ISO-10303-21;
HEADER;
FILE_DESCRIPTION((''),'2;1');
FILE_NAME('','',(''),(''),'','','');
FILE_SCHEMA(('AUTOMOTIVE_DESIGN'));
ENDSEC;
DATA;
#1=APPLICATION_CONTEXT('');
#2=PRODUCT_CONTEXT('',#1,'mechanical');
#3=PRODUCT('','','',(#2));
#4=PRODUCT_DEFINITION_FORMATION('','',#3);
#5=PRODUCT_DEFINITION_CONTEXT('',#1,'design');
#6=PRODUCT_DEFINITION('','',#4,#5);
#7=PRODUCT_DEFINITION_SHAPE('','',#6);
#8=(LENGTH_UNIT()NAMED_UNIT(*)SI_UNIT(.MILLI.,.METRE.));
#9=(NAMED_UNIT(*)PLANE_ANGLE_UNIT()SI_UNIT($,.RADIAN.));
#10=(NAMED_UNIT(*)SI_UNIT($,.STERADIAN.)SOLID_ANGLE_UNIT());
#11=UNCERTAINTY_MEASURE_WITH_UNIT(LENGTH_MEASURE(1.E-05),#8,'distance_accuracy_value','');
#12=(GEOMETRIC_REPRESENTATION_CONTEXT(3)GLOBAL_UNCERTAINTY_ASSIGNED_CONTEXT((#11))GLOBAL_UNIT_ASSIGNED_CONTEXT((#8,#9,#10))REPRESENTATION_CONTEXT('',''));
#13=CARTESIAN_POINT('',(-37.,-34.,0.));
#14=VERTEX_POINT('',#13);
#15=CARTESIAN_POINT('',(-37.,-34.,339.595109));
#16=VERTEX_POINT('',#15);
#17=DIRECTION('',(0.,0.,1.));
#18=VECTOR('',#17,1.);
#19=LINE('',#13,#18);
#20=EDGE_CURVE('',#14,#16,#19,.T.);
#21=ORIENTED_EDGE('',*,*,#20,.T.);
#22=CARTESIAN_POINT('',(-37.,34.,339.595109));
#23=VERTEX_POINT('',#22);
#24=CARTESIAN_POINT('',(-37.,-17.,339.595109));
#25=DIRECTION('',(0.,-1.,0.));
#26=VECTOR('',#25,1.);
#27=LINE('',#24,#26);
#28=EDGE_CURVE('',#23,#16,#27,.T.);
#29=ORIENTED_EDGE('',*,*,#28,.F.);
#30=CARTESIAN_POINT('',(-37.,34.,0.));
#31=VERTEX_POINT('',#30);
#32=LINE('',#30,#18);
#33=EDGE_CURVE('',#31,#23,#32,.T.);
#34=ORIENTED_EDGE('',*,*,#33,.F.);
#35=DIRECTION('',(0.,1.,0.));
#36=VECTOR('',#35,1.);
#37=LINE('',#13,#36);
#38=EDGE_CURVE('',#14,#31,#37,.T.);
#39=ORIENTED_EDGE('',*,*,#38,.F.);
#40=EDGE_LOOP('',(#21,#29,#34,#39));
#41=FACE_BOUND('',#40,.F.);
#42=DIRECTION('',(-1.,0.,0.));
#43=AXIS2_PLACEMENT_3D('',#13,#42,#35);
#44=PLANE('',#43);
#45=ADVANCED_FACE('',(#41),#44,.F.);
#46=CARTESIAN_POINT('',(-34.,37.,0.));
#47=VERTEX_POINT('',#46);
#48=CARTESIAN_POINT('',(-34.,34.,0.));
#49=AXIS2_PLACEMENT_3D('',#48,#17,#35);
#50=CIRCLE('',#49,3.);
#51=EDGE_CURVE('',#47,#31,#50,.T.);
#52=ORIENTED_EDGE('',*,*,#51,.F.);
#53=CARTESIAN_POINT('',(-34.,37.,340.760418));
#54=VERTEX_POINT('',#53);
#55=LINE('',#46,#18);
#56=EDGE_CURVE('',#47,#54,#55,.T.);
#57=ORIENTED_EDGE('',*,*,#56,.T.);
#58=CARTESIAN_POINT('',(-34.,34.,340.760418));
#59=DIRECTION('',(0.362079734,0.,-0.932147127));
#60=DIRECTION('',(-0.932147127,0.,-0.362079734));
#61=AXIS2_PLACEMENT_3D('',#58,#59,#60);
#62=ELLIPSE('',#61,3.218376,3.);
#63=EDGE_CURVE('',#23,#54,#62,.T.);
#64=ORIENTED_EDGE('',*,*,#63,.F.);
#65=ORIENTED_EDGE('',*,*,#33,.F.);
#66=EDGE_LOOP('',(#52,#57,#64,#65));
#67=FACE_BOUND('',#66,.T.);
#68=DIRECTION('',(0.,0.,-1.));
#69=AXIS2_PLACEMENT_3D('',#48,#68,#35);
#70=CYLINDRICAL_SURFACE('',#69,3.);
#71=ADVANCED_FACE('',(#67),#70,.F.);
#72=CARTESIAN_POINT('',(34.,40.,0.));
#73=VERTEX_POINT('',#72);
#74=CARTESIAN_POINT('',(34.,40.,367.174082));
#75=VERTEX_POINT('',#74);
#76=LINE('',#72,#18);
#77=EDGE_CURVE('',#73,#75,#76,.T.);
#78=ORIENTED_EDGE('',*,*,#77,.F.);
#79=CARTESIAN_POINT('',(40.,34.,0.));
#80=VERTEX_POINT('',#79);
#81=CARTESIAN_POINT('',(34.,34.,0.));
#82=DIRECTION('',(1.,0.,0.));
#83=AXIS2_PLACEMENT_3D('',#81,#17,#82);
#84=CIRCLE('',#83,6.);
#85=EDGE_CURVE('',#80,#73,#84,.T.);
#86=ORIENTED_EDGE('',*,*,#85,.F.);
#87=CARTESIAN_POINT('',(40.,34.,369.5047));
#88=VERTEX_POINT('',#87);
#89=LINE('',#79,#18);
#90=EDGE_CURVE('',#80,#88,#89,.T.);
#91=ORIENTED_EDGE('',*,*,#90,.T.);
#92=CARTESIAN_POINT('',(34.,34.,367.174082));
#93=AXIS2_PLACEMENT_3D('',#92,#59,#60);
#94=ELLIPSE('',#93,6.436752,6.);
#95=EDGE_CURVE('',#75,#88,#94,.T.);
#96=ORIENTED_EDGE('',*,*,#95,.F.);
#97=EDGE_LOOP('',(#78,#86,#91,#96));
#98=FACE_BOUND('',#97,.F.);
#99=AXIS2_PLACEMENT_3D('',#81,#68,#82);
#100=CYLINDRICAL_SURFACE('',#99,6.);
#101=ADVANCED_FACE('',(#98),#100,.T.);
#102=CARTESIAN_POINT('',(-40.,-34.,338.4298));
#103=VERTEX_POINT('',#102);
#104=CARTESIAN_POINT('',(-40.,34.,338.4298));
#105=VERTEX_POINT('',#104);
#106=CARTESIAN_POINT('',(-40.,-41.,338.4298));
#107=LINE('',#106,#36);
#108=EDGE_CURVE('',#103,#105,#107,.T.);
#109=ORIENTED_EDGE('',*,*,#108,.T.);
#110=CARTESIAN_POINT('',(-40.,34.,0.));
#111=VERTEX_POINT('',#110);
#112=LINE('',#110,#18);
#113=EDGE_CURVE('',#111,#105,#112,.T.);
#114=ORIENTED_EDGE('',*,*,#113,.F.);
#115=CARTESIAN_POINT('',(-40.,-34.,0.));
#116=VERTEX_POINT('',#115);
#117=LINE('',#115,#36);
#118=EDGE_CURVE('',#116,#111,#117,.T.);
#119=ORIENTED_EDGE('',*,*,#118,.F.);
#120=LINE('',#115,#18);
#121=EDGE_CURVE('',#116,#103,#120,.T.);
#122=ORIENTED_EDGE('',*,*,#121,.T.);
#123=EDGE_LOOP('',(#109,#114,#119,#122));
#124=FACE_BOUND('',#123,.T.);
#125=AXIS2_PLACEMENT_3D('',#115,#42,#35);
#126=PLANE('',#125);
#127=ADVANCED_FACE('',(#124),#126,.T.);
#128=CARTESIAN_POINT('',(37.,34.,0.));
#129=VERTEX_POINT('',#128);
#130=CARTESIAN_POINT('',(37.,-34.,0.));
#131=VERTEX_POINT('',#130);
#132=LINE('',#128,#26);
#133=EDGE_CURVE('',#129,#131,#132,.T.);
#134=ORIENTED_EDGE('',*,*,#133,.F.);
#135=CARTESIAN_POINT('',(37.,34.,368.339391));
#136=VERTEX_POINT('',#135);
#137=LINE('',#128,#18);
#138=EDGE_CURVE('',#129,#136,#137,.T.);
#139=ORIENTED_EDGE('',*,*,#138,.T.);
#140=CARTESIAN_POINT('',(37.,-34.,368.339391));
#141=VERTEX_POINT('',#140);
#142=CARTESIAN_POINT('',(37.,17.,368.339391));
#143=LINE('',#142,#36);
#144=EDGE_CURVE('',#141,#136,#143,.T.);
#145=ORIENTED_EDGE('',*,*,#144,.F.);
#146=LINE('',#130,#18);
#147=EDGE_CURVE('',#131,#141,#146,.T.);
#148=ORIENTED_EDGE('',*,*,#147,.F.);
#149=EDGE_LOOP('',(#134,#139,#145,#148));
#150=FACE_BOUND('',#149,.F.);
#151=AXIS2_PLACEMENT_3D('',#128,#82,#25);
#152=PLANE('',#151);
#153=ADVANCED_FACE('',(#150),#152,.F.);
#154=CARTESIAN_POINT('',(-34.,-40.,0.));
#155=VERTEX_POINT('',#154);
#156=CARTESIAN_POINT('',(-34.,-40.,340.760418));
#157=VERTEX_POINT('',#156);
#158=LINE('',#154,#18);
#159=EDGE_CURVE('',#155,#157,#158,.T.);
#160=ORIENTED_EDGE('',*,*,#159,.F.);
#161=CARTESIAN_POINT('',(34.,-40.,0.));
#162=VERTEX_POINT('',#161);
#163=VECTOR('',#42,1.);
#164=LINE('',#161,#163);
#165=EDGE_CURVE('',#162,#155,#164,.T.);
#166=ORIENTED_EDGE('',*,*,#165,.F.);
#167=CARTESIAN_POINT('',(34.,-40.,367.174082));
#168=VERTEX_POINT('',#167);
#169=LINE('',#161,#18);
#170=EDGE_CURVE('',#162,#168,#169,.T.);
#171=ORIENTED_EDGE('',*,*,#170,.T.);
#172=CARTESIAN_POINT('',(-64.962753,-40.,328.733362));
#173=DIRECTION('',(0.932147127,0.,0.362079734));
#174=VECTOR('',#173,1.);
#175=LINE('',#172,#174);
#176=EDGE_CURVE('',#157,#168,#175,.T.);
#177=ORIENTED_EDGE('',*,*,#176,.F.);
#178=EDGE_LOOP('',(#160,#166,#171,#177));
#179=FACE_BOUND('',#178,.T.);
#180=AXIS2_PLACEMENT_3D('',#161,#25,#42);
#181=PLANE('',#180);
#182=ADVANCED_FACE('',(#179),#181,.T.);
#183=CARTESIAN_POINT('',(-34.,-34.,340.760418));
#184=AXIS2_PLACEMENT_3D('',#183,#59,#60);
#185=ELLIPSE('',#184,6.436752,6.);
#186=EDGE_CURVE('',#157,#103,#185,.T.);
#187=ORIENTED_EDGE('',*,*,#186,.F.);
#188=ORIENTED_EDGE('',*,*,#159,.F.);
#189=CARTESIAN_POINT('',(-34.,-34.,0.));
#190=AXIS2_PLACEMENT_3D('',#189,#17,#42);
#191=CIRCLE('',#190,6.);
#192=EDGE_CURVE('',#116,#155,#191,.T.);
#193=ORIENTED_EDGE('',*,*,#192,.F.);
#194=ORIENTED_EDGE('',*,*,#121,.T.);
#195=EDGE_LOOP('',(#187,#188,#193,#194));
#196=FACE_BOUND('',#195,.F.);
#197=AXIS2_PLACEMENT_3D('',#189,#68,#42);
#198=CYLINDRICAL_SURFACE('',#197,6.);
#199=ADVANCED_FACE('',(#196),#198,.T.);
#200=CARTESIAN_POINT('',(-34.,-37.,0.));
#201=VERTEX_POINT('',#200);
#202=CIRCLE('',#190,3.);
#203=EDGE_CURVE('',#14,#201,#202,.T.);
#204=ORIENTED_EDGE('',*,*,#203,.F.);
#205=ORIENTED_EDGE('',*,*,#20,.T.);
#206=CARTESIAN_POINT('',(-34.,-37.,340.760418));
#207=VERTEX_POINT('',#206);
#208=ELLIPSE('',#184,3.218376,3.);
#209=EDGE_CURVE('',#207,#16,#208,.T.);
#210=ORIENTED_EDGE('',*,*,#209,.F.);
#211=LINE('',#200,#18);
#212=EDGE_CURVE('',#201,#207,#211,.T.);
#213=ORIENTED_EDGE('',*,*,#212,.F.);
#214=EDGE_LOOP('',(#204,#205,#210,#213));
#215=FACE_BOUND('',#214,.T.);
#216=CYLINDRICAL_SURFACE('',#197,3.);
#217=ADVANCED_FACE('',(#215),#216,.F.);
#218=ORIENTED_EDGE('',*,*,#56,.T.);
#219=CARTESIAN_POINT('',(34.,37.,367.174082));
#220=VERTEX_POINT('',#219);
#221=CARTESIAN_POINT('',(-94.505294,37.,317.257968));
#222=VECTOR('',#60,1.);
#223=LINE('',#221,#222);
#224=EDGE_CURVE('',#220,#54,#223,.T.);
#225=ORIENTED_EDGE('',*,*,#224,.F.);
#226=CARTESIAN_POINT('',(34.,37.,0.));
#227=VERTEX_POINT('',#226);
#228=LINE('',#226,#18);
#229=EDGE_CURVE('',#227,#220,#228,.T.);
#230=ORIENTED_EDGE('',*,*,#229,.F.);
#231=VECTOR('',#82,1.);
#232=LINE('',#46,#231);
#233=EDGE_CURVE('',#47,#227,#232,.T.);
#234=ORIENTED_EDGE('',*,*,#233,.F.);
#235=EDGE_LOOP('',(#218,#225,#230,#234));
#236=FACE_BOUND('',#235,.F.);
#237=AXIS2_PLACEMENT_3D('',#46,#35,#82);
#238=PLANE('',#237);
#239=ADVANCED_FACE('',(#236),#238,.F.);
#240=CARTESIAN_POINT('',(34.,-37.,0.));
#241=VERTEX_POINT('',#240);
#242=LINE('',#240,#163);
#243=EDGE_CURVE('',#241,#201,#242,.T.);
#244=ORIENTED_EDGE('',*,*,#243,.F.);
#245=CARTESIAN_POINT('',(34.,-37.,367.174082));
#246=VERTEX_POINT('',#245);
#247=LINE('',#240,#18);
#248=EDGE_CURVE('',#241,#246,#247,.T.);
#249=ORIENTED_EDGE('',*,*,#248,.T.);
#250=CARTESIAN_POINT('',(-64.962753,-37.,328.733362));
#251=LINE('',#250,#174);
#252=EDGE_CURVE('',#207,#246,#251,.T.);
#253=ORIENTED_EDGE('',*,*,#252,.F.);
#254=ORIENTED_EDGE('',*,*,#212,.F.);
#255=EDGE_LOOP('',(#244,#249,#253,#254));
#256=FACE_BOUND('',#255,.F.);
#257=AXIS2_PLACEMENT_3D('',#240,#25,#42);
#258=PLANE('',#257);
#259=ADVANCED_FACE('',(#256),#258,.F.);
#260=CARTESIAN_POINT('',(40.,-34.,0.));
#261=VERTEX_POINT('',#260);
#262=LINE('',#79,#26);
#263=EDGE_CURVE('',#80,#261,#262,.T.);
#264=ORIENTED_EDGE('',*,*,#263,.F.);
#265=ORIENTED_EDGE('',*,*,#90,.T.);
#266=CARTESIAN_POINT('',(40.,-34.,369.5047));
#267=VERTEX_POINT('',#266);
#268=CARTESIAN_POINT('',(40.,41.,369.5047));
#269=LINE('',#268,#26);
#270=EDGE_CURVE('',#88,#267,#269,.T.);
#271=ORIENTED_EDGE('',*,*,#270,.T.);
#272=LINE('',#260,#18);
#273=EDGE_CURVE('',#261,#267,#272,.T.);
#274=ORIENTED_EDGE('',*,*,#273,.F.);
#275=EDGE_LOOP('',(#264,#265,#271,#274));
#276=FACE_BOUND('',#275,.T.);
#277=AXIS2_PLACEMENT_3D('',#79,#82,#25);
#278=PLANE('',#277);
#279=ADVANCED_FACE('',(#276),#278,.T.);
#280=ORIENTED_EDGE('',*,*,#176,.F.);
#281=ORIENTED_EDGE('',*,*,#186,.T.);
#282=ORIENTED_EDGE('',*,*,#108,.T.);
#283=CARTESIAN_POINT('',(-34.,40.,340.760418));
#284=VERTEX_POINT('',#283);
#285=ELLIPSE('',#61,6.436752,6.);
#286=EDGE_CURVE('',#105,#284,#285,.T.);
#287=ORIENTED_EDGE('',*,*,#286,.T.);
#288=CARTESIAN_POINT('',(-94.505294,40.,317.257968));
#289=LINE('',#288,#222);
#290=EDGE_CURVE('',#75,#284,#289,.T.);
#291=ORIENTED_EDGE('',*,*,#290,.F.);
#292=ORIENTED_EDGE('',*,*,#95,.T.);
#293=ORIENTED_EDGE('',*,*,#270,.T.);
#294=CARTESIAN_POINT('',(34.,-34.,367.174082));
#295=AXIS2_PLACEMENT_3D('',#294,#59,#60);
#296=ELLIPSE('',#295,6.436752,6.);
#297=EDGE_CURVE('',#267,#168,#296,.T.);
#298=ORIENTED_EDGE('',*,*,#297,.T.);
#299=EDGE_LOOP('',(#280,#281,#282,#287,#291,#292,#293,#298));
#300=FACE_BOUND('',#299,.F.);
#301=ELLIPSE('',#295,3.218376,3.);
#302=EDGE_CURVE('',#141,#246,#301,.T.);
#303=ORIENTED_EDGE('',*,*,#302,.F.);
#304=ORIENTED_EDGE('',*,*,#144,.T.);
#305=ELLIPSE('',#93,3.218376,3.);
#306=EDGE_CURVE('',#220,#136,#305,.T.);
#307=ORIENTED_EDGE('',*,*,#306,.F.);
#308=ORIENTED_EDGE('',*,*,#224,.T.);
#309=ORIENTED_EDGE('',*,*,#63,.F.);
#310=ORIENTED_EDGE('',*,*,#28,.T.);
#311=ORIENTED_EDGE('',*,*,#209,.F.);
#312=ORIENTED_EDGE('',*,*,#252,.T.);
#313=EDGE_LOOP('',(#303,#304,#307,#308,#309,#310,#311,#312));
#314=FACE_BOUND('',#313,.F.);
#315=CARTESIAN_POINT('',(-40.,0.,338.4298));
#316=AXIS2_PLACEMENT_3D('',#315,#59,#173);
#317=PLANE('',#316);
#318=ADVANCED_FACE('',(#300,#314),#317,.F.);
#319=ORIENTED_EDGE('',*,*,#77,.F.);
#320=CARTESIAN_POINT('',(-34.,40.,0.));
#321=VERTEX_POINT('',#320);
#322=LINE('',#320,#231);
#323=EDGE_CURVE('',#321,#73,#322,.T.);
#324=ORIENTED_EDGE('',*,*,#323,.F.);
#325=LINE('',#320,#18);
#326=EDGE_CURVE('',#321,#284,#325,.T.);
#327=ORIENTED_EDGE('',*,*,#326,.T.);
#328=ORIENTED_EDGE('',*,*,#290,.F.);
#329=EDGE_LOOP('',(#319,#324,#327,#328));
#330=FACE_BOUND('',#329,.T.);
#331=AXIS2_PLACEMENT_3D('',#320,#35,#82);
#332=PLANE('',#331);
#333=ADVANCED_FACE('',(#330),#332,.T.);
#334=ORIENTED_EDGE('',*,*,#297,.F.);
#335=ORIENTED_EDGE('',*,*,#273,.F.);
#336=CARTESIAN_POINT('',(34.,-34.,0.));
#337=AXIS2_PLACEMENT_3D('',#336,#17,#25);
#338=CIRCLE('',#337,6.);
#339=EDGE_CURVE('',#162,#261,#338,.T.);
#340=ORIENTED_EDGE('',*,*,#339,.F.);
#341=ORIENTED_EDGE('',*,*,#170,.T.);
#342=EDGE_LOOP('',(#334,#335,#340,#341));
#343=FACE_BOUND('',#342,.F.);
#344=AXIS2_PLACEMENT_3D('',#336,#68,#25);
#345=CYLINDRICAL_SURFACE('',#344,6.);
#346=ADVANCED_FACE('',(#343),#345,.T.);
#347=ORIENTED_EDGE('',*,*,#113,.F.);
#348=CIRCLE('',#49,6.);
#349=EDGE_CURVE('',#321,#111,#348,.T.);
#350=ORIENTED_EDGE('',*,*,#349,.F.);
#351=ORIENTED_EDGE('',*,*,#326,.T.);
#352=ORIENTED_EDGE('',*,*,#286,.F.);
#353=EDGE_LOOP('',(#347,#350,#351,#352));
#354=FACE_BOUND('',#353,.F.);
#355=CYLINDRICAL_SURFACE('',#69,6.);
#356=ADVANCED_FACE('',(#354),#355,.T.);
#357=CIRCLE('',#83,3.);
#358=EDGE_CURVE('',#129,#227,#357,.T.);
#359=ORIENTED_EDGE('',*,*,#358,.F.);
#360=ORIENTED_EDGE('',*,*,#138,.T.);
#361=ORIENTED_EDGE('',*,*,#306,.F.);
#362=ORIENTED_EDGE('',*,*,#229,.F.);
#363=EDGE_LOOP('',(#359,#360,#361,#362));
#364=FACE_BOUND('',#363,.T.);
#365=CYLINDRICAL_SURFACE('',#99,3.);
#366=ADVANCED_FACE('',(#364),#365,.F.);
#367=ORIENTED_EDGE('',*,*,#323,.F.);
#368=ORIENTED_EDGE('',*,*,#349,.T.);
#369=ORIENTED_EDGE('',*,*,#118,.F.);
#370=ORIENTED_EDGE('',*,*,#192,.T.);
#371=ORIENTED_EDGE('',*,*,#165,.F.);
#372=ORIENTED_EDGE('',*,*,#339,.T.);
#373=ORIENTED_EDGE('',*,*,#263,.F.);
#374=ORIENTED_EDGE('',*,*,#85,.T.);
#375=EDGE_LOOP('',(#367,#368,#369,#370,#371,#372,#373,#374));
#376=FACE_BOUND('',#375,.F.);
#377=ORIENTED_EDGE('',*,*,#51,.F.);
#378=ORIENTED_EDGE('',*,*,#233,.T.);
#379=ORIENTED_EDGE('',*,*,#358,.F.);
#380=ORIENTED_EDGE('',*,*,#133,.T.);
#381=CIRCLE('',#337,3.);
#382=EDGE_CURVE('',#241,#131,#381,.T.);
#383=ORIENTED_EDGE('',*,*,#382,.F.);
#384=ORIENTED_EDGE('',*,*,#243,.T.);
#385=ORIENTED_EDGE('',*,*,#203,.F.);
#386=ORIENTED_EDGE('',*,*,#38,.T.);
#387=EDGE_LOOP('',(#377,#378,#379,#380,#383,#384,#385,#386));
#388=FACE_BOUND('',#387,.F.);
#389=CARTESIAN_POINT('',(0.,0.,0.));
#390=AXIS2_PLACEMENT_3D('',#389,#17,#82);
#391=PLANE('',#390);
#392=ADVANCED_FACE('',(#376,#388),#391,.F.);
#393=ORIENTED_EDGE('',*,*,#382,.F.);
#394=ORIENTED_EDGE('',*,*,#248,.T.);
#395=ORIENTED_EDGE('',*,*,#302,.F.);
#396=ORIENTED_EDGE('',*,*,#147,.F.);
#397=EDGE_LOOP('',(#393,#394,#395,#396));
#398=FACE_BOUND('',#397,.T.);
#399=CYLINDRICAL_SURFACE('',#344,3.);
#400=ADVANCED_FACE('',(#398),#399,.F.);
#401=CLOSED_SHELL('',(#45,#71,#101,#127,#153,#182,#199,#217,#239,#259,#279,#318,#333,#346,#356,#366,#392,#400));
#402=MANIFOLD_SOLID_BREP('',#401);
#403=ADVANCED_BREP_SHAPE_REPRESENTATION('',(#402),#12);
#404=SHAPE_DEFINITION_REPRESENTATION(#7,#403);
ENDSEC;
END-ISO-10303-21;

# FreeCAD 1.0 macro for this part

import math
import FreeCAD as App
import Part
import Sketcher
from FreeCAD import Vector
Q = App.Units.Quantity


def add_polygon(sketch, points):
    """Adds a closed chain of lines whose ends are joined by coincident constraints."""
    first, n = sketch.GeometryCount, len(points)
    for a, b in zip(points, points[1:] + points[:1]):
        sketch.addGeometry(Part.LineSegment(App.Vector(*a, 0), App.Vector(*b, 0)), False)
    for i in range(n):
        sketch.addConstraint(Sketcher.Constraint("Coincident", first + i, 2, first + (i + 1) % n, 1))

doc = App.newDocument("Part")
body = doc.addObject("PartDesign::Body", "Body")

# Sketch on XY plane
sketch1 = body.newObject("Sketcher::SketchObject", "Sketch")
sketch1.AttachmentSupport = (doc.getObject("XY_Plane"), [""])
sketch1.MapMode = "FlatFace"
sketch1.addGeometry(Part.LineSegment(Vector(-40, 34, 0), Vector(-40, -34, 0)), False)
sketch1.addGeometry(Part.ArcOfCircle(Part.Circle(Vector(-34, -34, 0), Vector(0, 0, 1), 6), math.radians(180), math.radians(270)), False)
sketch1.addGeometry(Part.LineSegment(Vector(-34, -40, 0), Vector(34, -40, 0)), False)
sketch1.addGeometry(Part.ArcOfCircle(Part.Circle(Vector(34, -34, 0), Vector(0, 0, 1), 6), math.radians(-90), math.radians(0)), False)
sketch1.addGeometry(Part.LineSegment(Vector(40, -34, 0), Vector(40, 34, 0)), False)
sketch1.addGeometry(Part.ArcOfCircle(Part.Circle(Vector(34, 34, 0), Vector(0, 0, 1), 6), math.radians(0), math.radians(90)), False)
sketch1.addGeometry(Part.LineSegment(Vector(34, 40, 0), Vector(-34, 40, 0)), False)
sketch1.addGeometry(Part.ArcOfCircle(Part.Circle(Vector(-34, 34, 0), Vector(0, 0, 1), 6), math.radians(90), math.radians(180)), False)
sketch1.addGeometry(Part.ArcOfCircle(Part.Circle(Vector(-34, 34, 0), Vector(0, 0, 1), 3), math.radians(90), math.radians(180)), False)
sketch1.addGeometry(Part.LineSegment(Vector(-34, 37, 0), Vector(34, 37, 0)), False)
sketch1.addGeometry(Part.ArcOfCircle(Part.Circle(Vector(34, 34, 0), Vector(0, 0, 1), 3), math.radians(0), math.radians(90)), False)
sketch1.addGeometry(Part.LineSegment(Vector(37, 34, 0), Vector(37, -34, 0)), False)
sketch1.addGeometry(Part.ArcOfCircle(Part.Circle(Vector(34, -34, 0), Vector(0, 0, 1), 3), math.radians(-90), math.radians(0)), False)
sketch1.addGeometry(Part.LineSegment(Vector(34, -37, 0), Vector(-34, -37, 0)), False)
sketch1.addGeometry(Part.ArcOfCircle(Part.Circle(Vector(-34, -34, 0), Vector(0, 0, 1), 3), math.radians(180), math.radians(270)), False)
sketch1.addGeometry(Part.LineSegment(Vector(-37, -34, 0), Vector(-37, 34, 0)), False)
sketch1.addConstraint(Sketcher.Constraint("Tangent", 0, 2, 1, 1))
sketch1.addConstraint(Sketcher.Constraint("Tangent", 1, 2, 2, 1))
sketch1.addConstraint(Sketcher.Constraint("Tangent", 2, 2, 3, 1))
sketch1.addConstraint(Sketcher.Constraint("Tangent", 3, 2, 4, 1))
sketch1.addConstraint(Sketcher.Constraint("Tangent", 4, 2, 5, 1))
sketch1.addConstraint(Sketcher.Constraint("Tangent", 5, 2, 6, 1))
sketch1.addConstraint(Sketcher.Constraint("Tangent", 6, 2, 7, 1))
sketch1.addConstraint(Sketcher.Constraint("Tangent", 7, 2, 0, 1))
sketch1.addConstraint(Sketcher.Constraint("Tangent", 8, 1, 9, 1))
sketch1.addConstraint(Sketcher.Constraint("Tangent", 9, 2, 10, 2))
sketch1.addConstraint(Sketcher.Constraint("Tangent", 10, 1, 11, 1))
sketch1.addConstraint(Sketcher.Constraint("Tangent", 11, 2, 12, 2))
sketch1.addConstraint(Sketcher.Constraint("Tangent", 12, 1, 13, 1))
sketch1.addConstraint(Sketcher.Constraint("Tangent", 13, 2, 14, 2))
sketch1.addConstraint(Sketcher.Constraint("Tangent", 14, 1, 15, 1))
sketch1.addConstraint(Sketcher.Constraint("Tangent", 15, 2, 8, 2))
sketch1.addConstraint(Sketcher.Constraint("Vertical", 0))
sketch1.addConstraint(Sketcher.Constraint("Horizontal", 2))
sketch1.addConstraint(Sketcher.Constraint("Vertical", 4))
sketch1.addConstraint(Sketcher.Constraint("Horizontal", 6))
sketch1.addConstraint(Sketcher.Constraint("Horizontal", 9))
sketch1.addConstraint(Sketcher.Constraint("Vertical", 11))
sketch1.addConstraint(Sketcher.Constraint("Horizontal", 13))
sketch1.addConstraint(Sketcher.Constraint("Vertical", 15))
sketch1.addConstraint(Sketcher.Constraint("Coincident", 8, 3, 7, 3))
sketch1.addConstraint(Sketcher.Constraint("Coincident", 10, 3, 5, 3))
sketch1.addConstraint(Sketcher.Constraint("Coincident", 12, 3, 3, 3))
sketch1.addConstraint(Sketcher.Constraint("Equal", 1, 3))
sketch1.addConstraint(Sketcher.Constraint("Equal", 3, 5))
sketch1.addConstraint(Sketcher.Constraint("Equal", 5, 7))
sketch1.addConstraint(Sketcher.Constraint("Equal", 12, 14))
sketch1.addConstraint(Sketcher.Constraint("Symmetric", 1, 3, 5, 3, -1, 1))
sketch1.addConstraint(Sketcher.Constraint("Equal", 13, 0))
sketch1.addConstraint(Sketcher.Constraint("Radius", 1, Q("6 mm")))
sketch1.addConstraint(Sketcher.Constraint("Radius", 8, Q("3 mm")))
sketch1.addConstraint(Sketcher.Constraint("DistanceX", 0, 2, -1, 1, Q("40 mm")))
pad1 = body.newObject("PartDesign::Pad", "Pad")
pad1.Profile = sketch1
pad1.Length = 1000

# Sketch on XZ plane
sketch2 = body.newObject("Sketcher::SketchObject", "Sketch001")
sketch2.AttachmentSupport = (doc.getObject("XZ_Plane"), [""])
sketch2.MapMode = "FlatFace"
add_polygon(sketch2, [(40, 369.5047), (-40, 338.4298), (-40, 1000), (40, 1000)])  # lines 0-3
sketch2.addConstraint(Sketcher.Constraint("Vertical", 1))
sketch2.addConstraint(Sketcher.Constraint("Horizontal", 2))
sketch2.addConstraint(Sketcher.Constraint("Vertical", 3))
sketch2.addConstraint(Sketcher.Constraint("DistanceX", 2, 1, 2, 2, Q("80 mm")))
sketch2.addConstraint(Sketcher.Constraint("DistanceX", 0, 2, -1, 1, Q("40 mm")))
sketch2.addConstraint(Sketcher.Constraint("DistanceY", -1, 1, 1, 2, Q("1000 mm")))
sketch2.addConstraint(Sketcher.Constraint("DistanceY", 1, 1, 1, 2, Q("661.5702 mm")))
sketch2.addConstraint(Sketcher.Constraint("DistanceY", 3, 2, 3, 1, Q("630.4953 mm")))
pocket1 = body.newObject("PartDesign::Pocket", "Pocket")
pocket1.Profile = sketch2
pocket1.Type = "ThroughAll"
pocket1.Midplane = True

doc.recompute()
